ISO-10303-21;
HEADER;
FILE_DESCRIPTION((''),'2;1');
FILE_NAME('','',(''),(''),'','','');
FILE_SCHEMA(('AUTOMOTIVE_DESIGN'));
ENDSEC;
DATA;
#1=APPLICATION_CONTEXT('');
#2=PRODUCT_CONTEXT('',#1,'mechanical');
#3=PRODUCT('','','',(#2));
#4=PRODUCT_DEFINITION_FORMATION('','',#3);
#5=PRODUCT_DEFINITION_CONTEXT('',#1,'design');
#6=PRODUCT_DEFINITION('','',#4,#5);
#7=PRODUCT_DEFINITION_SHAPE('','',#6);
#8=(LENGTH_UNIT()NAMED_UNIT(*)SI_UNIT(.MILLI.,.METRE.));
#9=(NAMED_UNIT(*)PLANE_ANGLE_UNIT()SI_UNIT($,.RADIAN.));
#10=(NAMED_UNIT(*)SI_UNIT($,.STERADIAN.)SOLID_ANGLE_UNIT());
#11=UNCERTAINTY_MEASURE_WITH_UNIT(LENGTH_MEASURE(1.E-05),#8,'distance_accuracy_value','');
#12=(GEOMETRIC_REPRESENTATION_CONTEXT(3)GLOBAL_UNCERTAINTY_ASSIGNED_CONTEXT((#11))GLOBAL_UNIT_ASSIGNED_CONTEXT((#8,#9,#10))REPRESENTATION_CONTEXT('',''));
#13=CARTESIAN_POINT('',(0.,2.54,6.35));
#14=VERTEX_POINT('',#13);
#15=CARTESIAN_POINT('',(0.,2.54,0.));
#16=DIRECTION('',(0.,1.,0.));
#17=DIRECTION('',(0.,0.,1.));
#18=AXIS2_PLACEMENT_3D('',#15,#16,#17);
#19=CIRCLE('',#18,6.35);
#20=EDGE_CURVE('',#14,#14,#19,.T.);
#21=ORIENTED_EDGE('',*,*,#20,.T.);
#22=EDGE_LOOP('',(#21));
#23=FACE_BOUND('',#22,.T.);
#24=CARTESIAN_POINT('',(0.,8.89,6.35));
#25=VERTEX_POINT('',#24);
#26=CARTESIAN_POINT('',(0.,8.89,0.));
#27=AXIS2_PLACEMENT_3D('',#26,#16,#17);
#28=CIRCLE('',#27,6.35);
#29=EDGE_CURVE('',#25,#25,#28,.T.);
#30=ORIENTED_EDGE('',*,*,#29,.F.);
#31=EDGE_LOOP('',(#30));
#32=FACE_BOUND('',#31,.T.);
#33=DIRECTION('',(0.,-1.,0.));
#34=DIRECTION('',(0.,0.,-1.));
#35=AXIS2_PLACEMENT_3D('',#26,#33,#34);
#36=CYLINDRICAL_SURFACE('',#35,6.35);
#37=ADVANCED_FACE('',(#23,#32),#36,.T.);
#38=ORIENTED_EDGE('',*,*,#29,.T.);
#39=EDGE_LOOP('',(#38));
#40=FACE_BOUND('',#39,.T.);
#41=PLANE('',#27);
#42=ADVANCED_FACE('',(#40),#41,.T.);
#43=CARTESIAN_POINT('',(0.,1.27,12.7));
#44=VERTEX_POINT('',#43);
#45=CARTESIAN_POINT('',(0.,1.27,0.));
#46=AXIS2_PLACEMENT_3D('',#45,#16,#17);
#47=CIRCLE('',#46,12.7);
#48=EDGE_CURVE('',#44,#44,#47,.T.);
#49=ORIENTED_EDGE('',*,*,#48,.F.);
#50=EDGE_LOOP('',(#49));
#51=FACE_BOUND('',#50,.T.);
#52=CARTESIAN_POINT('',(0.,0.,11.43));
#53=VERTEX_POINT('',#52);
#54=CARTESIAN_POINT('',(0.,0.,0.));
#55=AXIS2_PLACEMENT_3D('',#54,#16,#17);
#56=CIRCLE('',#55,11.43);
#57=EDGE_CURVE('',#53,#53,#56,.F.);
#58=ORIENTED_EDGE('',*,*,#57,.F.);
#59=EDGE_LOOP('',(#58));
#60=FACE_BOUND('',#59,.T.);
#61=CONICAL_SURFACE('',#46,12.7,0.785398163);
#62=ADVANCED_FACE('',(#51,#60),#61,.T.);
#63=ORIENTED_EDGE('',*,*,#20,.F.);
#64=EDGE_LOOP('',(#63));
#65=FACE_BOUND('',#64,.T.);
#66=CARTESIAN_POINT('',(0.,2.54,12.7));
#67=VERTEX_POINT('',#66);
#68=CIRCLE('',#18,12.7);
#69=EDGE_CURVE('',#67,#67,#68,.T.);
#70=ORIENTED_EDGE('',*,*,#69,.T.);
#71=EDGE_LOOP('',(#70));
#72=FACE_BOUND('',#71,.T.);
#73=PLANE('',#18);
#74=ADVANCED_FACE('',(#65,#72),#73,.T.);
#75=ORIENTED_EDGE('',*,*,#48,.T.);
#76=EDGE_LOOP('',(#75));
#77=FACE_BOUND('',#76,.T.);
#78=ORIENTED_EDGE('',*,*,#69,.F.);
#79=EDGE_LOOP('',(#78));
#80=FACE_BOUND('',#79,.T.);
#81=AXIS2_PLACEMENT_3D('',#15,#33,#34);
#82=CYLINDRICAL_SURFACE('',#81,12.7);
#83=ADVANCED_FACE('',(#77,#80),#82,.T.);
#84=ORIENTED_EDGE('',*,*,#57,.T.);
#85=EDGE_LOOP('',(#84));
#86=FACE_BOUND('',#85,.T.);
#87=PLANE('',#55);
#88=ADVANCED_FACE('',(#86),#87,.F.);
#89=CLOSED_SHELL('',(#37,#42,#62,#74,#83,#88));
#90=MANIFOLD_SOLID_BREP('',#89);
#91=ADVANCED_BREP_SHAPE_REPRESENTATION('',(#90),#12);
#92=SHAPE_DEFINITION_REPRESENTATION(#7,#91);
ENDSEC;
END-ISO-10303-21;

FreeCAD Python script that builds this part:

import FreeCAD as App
import Part
import Sketcher

V = App.Vector
Q = App.Units.Quantity


def edges_at(feature, points):
    """Names of the edges that pass closest to the given points."""
    edges = feature.Shape.Edges
    near = lambda p: min(range(len(edges)), key=lambda i: edges[i].distToShape(Part.Vertex(*p))[0])
    return sorted({f"Edge{near(p) + 1}" for p in points})

doc = App.newDocument("Part")
params = doc.addObject("Spreadsheet::Sheet", "Params")
for row, (alias, value) in enumerate([
    ("sketch1_diameter", "1 in"),
    ("pad1_length", "0.1 in"),
    ("sketch2_diameter", "0.5 in"),
    ("pad2_length", "0.25 in"),
    ("chamfer_size", "0.05 in"),
], start=1):
    params.set(f"A{row}", alias)
    params.set(f"B{row}", "=" + value)
    params.setAlias(f"B{row}", alias)

body = doc.addObject("PartDesign::Body", "Body")

sketch1 = body.newObject("Sketcher::SketchObject", "Sketch")
sketch1.AttachmentSupport = (doc.getObject("XZ_Plane"), [""])
sketch1.MapMode = "FlatFace"
sketch1.addGeometry(Part.Circle(V(0, 0, 0), V(0, 0, 1), 13), False)
sketch1.addConstraint(Sketcher.Constraint("Coincident", 0, 3, -1, 1))
sketch1.addConstraint(Sketcher.Constraint("Diameter", 0, Q("1 in")))
sketch1.setExpression("Constraints[1]", "Params.sketch1_diameter")
pad1 = body.newObject("PartDesign::Pad", "Pad")
pad1.Profile = sketch1
pad1.setExpression("Length", "Params.pad1_length")
pad1.Reversed = True

sketch2 = body.newObject("Sketcher::SketchObject", "Sketch001")
sketch2.AttachmentSupport = (doc.getObject("XZ_Plane"), [""])
sketch2.MapMode = "FlatFace"
sketch2.AttachmentOffset = App.Placement(V(0, 0, -0.1 * 25.4), App.Rotation())
sketch2.addGeometry(Part.Circle(V(0, 0, 0), V(0, 0, 1), 6), False)
sketch2.addConstraint(Sketcher.Constraint("Coincident", 0, 3, -1, 1))
sketch2.addConstraint(Sketcher.Constraint("Diameter", 0, Q("0.5 in")))
sketch2.setExpression("Constraints[1]", "Params.sketch2_diameter")
pad2 = body.newObject("PartDesign::Pad", "Pad001")
pad2.Profile = sketch2
pad2.setExpression("Length", "Params.pad2_length")
pad2.Reversed = True
doc.recompute()

chamfer = body.newObject("PartDesign::Chamfer", "Chamfer")
chamfer.Base = (pad2, edges_at(pad2, [(-12.7, 0, 0)]))
chamfer.setExpression("Size", "Params.chamfer_size")

doc.recompute()
